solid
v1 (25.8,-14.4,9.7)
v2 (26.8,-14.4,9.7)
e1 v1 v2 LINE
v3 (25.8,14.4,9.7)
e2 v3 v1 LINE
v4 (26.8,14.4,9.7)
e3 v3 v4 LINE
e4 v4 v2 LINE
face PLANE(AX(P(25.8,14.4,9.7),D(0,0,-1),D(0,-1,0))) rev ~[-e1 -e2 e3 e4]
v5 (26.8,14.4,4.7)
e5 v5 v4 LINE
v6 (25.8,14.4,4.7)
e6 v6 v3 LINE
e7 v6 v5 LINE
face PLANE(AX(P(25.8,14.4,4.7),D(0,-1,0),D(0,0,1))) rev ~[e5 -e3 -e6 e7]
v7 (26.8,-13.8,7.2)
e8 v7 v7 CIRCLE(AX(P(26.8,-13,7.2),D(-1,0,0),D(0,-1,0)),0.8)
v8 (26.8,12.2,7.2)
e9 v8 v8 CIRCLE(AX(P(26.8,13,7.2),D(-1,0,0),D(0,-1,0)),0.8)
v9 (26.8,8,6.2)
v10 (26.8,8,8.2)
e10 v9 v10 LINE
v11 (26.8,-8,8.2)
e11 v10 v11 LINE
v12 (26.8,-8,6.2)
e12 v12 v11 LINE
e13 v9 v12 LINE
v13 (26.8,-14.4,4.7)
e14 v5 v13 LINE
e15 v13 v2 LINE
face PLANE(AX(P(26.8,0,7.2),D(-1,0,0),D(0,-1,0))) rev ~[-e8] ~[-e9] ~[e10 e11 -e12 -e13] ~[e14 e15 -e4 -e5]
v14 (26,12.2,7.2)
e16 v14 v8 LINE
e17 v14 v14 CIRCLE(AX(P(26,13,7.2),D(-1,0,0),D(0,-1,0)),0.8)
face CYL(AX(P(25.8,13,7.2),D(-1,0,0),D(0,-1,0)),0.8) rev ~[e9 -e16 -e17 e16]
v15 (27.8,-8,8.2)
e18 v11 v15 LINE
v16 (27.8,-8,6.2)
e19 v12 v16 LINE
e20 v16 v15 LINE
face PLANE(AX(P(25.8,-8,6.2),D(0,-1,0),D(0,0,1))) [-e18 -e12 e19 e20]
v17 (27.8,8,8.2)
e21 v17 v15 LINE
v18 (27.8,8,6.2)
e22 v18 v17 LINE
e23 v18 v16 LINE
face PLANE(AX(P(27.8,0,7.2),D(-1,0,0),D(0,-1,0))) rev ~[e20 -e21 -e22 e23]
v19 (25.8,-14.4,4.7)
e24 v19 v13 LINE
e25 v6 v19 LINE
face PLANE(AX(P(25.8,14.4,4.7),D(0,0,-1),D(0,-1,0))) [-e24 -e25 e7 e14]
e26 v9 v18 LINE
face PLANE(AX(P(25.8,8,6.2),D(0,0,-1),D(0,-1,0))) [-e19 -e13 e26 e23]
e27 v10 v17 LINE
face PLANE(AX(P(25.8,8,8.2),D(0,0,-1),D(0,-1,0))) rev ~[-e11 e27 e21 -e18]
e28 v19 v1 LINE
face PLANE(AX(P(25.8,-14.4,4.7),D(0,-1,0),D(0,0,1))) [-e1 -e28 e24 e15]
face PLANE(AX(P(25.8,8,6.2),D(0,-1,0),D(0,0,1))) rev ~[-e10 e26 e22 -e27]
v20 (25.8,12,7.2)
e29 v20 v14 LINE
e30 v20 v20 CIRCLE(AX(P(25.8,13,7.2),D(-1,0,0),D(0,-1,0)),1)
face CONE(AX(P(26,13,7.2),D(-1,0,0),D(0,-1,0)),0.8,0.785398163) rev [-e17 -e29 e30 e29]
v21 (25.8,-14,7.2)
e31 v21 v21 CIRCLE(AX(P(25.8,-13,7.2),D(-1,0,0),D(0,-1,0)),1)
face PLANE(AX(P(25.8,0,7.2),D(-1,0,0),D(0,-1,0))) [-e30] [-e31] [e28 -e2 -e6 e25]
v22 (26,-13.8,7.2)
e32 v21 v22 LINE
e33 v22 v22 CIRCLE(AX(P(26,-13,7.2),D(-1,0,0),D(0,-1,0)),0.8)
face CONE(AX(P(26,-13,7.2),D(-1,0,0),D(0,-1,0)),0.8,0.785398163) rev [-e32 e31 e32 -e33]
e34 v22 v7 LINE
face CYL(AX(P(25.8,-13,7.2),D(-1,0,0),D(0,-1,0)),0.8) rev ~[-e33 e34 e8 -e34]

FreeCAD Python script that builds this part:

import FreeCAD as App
import Part
import Sketcher

V = App.Vector
Q = App.Units.Quantity


def edges_at(feature, points):
    """Names of the edges that pass closest to the given points."""
    edges = feature.Shape.Edges
    near = lambda p: min(range(len(edges)), key=lambda i: edges[i].distToShape(Part.Vertex(*p))[0])
    return sorted({f"Edge{near(p) + 1}" for p in points})


def add_polygon(sketch, points):
    """Adds a closed chain of lines whose ends are joined by coincident constraints."""
    first, n = sketch.GeometryCount, len(points)
    for a, b in zip(points, points[1:] + points[:1]):
        sketch.addGeometry(Part.LineSegment(App.Vector(*a, 0), App.Vector(*b, 0)), False)
    for i in range(n):
        sketch.addConstraint(Sketcher.Constraint("Coincident", first + i, 2, first + (i + 1) % n, 1))

doc = App.newDocument("Part")
body = doc.addObject("PartDesign::Body", "Body")

# Sketch on YZ plane
sketch1 = body.newObject("Sketcher::SketchObject", "Sketch")
sketch1.AttachmentSupport = (doc.getObject("YZ_Plane"), [""])
sketch1.MapMode = "FlatFace"
add_polygon(sketch1, [(-14.4, 10.2), (-14.4, 5.2), (14.4, 5.2), (14.4, 10.2)])  # lines 0-3
sketch1.addConstraint([
    Sketcher.Constraint("Vertical", 0),
    Sketcher.Constraint("Horizontal", 1),
    Sketcher.Constraint("Vertical", 2),
    Sketcher.Constraint("Horizontal", 3),
    Sketcher.Constraint("DistanceY", 0, 2, 0, 1, Q("5 mm")),
    Sketcher.Constraint("DistanceX", 1, 1, 1, 2, Q("28.8 mm")),
    Sketcher.Constraint("DistanceX", 0, 2, -1, 1, Q("14.4 mm")),
    Sketcher.Constraint("DistanceY", -1, 1, 0, 2, Q("5.2 mm")),
])
pad1 = body.newObject("PartDesign::Pad", "Pad")
pad1.Profile = sketch1
pad1.Length = 1
pad1.Reversed = True

# Sketch on YZ plane
sketch2 = body.newObject("Sketcher::SketchObject", "Sketch001")
sketch2.AttachmentSupport = (doc.getObject("YZ_Plane"), [""])
sketch2.MapMode = "FlatFace"
add_polygon(sketch2, [(-8, 8.7), (-8, 6.7), (8, 6.7), (8, 8.7)])  # lines 0-3
sketch2.addConstraint([
    Sketcher.Constraint("Vertical", 0),
    Sketcher.Constraint("Horizontal", 1),
    Sketcher.Constraint("Vertical", 2),
    Sketcher.Constraint("Horizontal", 3),
    Sketcher.Constraint("DistanceX", 1, 1, 1, 2, Q("16 mm")),
    Sketcher.Constraint("DistanceY", 0, 2, 0, 1, Q("2 mm")),
    Sketcher.Constraint("DistanceX", 0, 2, -1, 1, Q("8 mm")),
    Sketcher.Constraint("DistanceY", -1, 1, 0, 2, Q("6.7 mm")),
])
pad2 = body.newObject("PartDesign::Pad", "Pad001")
pad2.Profile = sketch2
pad2.Length = 2
pad2.Reversed = True

# Sketch on YZ plane
sketch3 = body.newObject("Sketcher::SketchObject", "Sketch002")
sketch3.AttachmentSupport = (doc.getObject("YZ_Plane"), [""])
sketch3.MapMode = "FlatFace"
sketch3.addGeometry([
    Part.Circle(V(-13, 7.7, 0), V(0, 0, 1), 0.8),
    Part.Circle(V(13, 7.7, 0), V(0, 0, 1), 0.8),
], False)
sketch3.addConstraint([
    Sketcher.Constraint("Equal", 0, 1),
    Sketcher.Constraint("Symmetric", 0, 3, 1, 3, -2),
    Sketcher.Constraint("Diameter", 0, Q("1.6 mm")),
    Sketcher.Constraint("DistanceX", 0, 3, -1, 1, Q("13 mm")),
    Sketcher.Constraint("DistanceY", -1, 1, 0, 3, Q("7.7 mm")),
])
pocket1 = body.newObject("PartDesign::Pocket", "Pocket")
pocket1.Profile = sketch3
pocket1.Length = 5
doc.recompute()

chamfer = body.newObject("PartDesign::Chamfer", "Chamfer")
chamfer.Base = (pocket1, edges_at(pocket1, [(0, -13.8, 7.7), (0, 12.2, 7.7)]))
chamfer.Size = 0.2
body2 = doc.addObject("PartDesign::Body", "Body001")
doc.recompute()

body.Placement = App.Placement(V(25.8, 0, -0.5), App.Rotation(V(0, 0, 1), 180))
boolean = body2.newObject("PartDesign::Boolean", "Boolean")
boolean.Type = "Fuse"
boolean.addObjects([body])

doc.recompute()
